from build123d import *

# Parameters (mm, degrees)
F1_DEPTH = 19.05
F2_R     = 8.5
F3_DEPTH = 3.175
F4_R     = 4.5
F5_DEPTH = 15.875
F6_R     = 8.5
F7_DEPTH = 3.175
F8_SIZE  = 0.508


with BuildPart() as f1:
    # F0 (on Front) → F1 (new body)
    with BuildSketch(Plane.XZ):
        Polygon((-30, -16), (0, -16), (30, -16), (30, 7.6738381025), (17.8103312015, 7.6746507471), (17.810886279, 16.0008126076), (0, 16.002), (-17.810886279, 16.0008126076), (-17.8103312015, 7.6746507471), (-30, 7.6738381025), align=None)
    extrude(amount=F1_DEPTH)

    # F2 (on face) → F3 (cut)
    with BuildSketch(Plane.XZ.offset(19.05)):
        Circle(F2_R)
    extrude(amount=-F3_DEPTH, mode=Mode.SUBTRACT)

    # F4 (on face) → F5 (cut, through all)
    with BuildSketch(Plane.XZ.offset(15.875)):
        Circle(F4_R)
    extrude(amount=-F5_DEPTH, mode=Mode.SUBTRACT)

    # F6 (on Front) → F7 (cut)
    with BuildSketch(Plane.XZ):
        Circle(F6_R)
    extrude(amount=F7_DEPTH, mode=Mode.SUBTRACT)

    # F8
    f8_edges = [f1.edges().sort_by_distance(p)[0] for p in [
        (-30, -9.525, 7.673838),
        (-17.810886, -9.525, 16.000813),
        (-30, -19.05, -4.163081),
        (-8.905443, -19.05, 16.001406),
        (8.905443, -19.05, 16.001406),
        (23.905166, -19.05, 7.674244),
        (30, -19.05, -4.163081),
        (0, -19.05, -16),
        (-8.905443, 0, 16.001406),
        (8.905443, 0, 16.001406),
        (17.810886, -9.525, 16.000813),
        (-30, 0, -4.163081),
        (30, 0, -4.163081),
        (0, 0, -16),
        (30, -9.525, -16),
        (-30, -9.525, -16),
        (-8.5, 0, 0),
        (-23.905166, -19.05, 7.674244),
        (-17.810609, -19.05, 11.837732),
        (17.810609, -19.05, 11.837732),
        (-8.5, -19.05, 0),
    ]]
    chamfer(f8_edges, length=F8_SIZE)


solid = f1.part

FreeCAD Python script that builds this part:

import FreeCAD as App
import Part
import Sketcher
from FreeCAD import Vector
Q = App.Units.Quantity


def edges_at(feature, points):
    """Names of the edges that pass closest to the given points."""
    edges = feature.Shape.Edges
    near = lambda p: min(range(len(edges)), key=lambda i: edges[i].distToShape(Part.Vertex(*p))[0])
    return sorted({f"Edge{near(p) + 1}" for p in points})

doc = App.newDocument("Part")
body = doc.addObject("PartDesign::Body", "Body")

sketch1 = doc.addObject("Sketcher::SketchObject", "Sketch")
body.addObject(sketch1)
sketch1.AttachmentSupport = (doc.XZ_Plane, [""])
sketch1.MapMode = "FlatFace"
sketch1.addGeometry([
    Part.LineSegment(Vector(-30, -16, 0), Vector(30, -16, 0)),
    Part.LineSegment(Vector(30, -16, 0), Vector(30, 8, 0)),
    Part.LineSegment(Vector(30, 8, 0), Vector(18, 8, 0)),
    Part.LineSegment(Vector(18, 8, 0), Vector(18, 16, 0)),
    Part.LineSegment(Vector(18, 16, 0), Vector(0, 16, 0)),
    Part.LineSegment(Vector(0, 16, 0), Vector(-18, 16, 0)),
    Part.LineSegment(Vector(-18, 16, 0), Vector(-18, 8, 0)),
    Part.LineSegment(Vector(-18, 8, 0), Vector(-30, 8, 0)),
    Part.LineSegment(Vector(-30, 8, 0), Vector(-30, -16, 0)),
], False)
sketch1.addConstraint([
    Sketcher.Constraint("Coincident", 0, 2, 1, 1),
    Sketcher.Constraint("Coincident", 1, 2, 2, 1),
    Sketcher.Constraint("Coincident", 2, 2, 3, 1),
    Sketcher.Constraint("Coincident", 3, 2, 4, 1),
    Sketcher.Constraint("Coincident", 4, 2, 5, 1),
    Sketcher.Constraint("Coincident", 5, 2, 6, 1),
    Sketcher.Constraint("Coincident", 6, 2, 7, 1),
    Sketcher.Constraint("Coincident", 7, 2, 8, 1),
    Sketcher.Constraint("Coincident", 8, 2, 0, 1),
    Sketcher.Constraint("Horizontal", 0),
    Sketcher.Constraint("Vertical", 1),
    Sketcher.Constraint("Vertical", 8),
    Sketcher.Constraint("Symmetric", 3, 2, 5, 2, -2),
    Sketcher.Constraint("Symmetric", 2, 2, 6, 2, -2),
    Sketcher.Constraint("Symmetric", 1, 2, 7, 2, -2),
    Sketcher.Constraint("PointOnObject", 4, 2, -2),
    Sketcher.Constraint("Perpendicular", 2, 3),
    Sketcher.Constraint("Perpendicular", 3, 4),
    Sketcher.Constraint("DistanceY", -1, 1, 4, 2, Q("0.63 in")),
    Sketcher.Constraint("DistanceX", 0, 1, 0, 2, Q("60 mm")),
    Sketcher.Constraint("DistanceY", 1, 1, 1, 2, Q("23.673838 mm")),
    Sketcher.Constraint("DistanceY", 0, 2, -1, 1, Q("16 mm")),
    Sketcher.Constraint("Distance", 2, Q("12.189669 mm")),
    Sketcher.Constraint("Distance", 3, Q("8.326162 mm")),
])
pad1 = doc.addObject("PartDesign::Pad", "Pad")
body.addObject(pad1)
pad1.Profile = sketch1
pad1.Length = Q("0.75 in")

sketch2 = doc.addObject("Sketcher::SketchObject", "Sketch001")
body.addObject(sketch2)
sketch2.AttachmentSupport = (doc.XZ_Plane, [""])
sketch2.MapMode = "FlatFace"
sketch2.AttachmentOffset = App.Placement(Vector(0, 0, 0.75 * 25.4), App.Rotation())
sketch2.addGeometry(Part.Circle(Vector(0, 0, 0), Vector(0, 0, 1), 8), False)
sketch2.addConstraint([
    Sketcher.Constraint("Coincident", 0, 3, -1, 1),
    Sketcher.Constraint("Diameter", 0, Q("17 mm")),
])
pocket1 = doc.addObject("PartDesign::Pocket", "Pocket")
body.addObject(pocket1)
pocket1.Profile = sketch2
pocket1.Length = Q("0.125 in")

sketch3 = doc.addObject("Sketcher::SketchObject", "Sketch002")
body.addObject(sketch3)
sketch3.AttachmentSupport = (doc.XZ_Plane, [""])
sketch3.MapMode = "FlatFace"
sketch3.AttachmentOffset = App.Placement(Vector(0, 0, 0.625 * 25.4), App.Rotation())
sketch3.addGeometry(Part.Circle(Vector(0, 0, 0), Vector(0, 0, 1), 4.5), False)
sketch3.addConstraint([
    Sketcher.Constraint("Coincident", 0, 3, -1, 1),
    Sketcher.Constraint("Diameter", 0, Q("9 mm")),
])
pocket2 = doc.addObject("PartDesign::Pocket", "Pocket001")
body.addObject(pocket2)
pocket2.Profile = sketch3
pocket2.Type = "ThroughAll"

sketch4 = doc.addObject("Sketcher::SketchObject", "Sketch003")
body.addObject(sketch4)
sketch4.AttachmentSupport = (doc.XZ_Plane, [""])
sketch4.MapMode = "FlatFace"
sketch4.addGeometry(Part.Circle(Vector(0, 0, 0), Vector(0, 0, 1), 8), False)
sketch4.addConstraint([
    Sketcher.Constraint("Coincident", 0, 3, -1, 1),
    Sketcher.Constraint("Diameter", 0, Q("17 mm")),
])
pocket3 = doc.addObject("PartDesign::Pocket", "Pocket002")
body.addObject(pocket3)
pocket3.Profile = sketch4
pocket3.Length = Q("0.125 in")
pocket3.Reversed = True
doc.recompute()

chamfer = doc.addObject("PartDesign::Chamfer", "Chamfer")
body.addObject(chamfer)
chamfer.Base = (pocket3, edges_at(pocket3, [
    (-30, -9.525, 7.674),
    (-17.811, -9.525, 16.001),
    (-30, -19.05, -4.163),
    (-8.905, -19.05, 16.001),
    (8.905, -19.05, 16.001),
    (23.905, -19.05, 7.674),
    (30, -19.05, -4.163),
    (0, -19.05, -16),
    (-8.905, 0, 16.001),
    (8.905, 0, 16.001),
    (17.811, -9.525, 16.001),
    (-30, 0, -4.163),
    (30, 0, -4.163),
    (0, 0, -16),
    (30, -9.525, -16),
    (-30, -9.525, -16),
    (-8.5, 0, 0),
    (-23.905, -19.05, 7.674),
    (-17.811, -19.05, 11.838),
    (17.811, -19.05, 11.838),
    (-8.5, -19.05, 0),
]))
chamfer.Size = Q("0.02 in")

doc.recompute()
